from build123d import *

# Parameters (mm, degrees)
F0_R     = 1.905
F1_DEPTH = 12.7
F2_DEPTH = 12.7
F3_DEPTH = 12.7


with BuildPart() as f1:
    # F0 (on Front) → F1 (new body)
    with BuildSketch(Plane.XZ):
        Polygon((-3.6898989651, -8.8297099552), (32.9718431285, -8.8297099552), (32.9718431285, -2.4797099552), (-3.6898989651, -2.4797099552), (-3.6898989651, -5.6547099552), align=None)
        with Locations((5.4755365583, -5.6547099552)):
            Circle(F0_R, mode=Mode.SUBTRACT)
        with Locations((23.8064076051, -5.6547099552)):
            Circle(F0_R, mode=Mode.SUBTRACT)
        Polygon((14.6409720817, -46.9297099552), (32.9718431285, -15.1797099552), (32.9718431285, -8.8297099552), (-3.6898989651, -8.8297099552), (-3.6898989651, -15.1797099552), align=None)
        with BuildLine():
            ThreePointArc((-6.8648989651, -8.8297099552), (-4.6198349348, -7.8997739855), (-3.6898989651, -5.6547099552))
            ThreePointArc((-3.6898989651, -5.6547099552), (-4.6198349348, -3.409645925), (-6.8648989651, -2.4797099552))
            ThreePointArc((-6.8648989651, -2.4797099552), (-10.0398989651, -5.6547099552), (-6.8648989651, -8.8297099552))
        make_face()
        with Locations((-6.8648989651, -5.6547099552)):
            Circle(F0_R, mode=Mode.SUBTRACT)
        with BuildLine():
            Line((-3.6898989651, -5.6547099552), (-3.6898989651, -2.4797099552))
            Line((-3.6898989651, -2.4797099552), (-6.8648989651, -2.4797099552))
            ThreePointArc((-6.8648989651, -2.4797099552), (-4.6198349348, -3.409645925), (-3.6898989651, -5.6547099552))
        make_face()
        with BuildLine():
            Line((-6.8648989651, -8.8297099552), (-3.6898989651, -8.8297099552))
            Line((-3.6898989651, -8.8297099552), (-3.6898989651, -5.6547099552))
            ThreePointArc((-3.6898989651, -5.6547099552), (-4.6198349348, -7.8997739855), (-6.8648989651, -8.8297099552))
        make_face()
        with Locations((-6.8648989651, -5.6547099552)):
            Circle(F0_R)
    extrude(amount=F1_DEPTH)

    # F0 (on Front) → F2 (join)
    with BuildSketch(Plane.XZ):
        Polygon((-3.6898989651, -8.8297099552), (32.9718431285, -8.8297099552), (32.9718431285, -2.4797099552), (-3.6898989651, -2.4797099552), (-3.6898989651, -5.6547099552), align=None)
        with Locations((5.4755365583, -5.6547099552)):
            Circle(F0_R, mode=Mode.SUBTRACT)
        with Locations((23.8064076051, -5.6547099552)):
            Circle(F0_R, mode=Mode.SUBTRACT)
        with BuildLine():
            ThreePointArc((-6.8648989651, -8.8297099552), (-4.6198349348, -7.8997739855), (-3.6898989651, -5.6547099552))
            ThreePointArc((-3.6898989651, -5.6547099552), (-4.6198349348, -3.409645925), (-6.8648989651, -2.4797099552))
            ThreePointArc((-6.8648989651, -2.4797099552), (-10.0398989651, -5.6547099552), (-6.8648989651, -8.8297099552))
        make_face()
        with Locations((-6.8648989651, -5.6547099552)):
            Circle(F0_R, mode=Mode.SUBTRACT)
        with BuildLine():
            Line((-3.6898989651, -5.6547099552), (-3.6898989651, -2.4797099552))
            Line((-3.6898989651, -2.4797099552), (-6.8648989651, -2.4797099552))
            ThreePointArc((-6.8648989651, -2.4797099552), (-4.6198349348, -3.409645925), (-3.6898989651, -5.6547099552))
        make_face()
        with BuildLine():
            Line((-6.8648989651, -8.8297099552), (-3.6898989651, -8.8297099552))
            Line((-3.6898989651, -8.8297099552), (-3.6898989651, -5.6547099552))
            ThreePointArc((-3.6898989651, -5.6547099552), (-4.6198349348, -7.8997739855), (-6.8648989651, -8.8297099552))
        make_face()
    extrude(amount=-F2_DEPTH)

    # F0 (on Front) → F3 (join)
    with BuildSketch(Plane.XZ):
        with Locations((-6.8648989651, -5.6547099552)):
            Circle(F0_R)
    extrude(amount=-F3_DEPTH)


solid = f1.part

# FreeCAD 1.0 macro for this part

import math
import FreeCAD as App
import Part
import Sketcher

V = App.Vector
Q = App.Units.Quantity

doc = App.newDocument("Part")
body = doc.addObject("PartDesign::Body", "Body")

sketch1 = body.newObject("Sketcher::SketchObject", "Sketch")
sketch1.AttachmentSupport = (doc.getObject("XZ_Plane"), [""])
sketch1.MapMode = "FlatFace"
sketch1.addGeometry(Part.LineSegment(V(-3.7, -8.8, 0), V(-3.7, -15.2, 0)), False)
sketch1.addGeometry(Part.LineSegment(V(-3.7, -15.2, 0), V(14.6, -46.9, 0)), False)
sketch1.addGeometry(Part.LineSegment(V(14.6, -46.9, 0), V(33, -15.2, 0)), False)
sketch1.addGeometry(Part.LineSegment(V(33, -15.2, 0), V(33, -2.5, 0)), False)
sketch1.addGeometry(Part.LineSegment(V(33, -2.5, 0), V(-6.9, -2.5, 0)), False)
sketch1.addGeometry(Part.ArcOfCircle(Part.Circle(V(-6.9, -5.7, 0), V(0, 0, 1), 3.2), math.radians(90), math.radians(270)), False)
sketch1.addGeometry(Part.LineSegment(V(-6.9, -8.8, 0), V(-3.7, -8.8, 0)), False)
sketch1.addGeometry(Part.Circle(V(5.5, -5.7, 0), V(0, 0, 1), 1.9), False)
sketch1.addGeometry(Part.Circle(V(23.8, -5.7, 0), V(0, 0, 1), 1.9), False)
sketch1.addConstraint(Sketcher.Constraint("Coincident", 0, 2, 1, 1))
sketch1.addConstraint(Sketcher.Constraint("Coincident", 1, 2, 2, 1))
sketch1.addConstraint(Sketcher.Constraint("Coincident", 2, 2, 3, 1))
sketch1.addConstraint(Sketcher.Constraint("Coincident", 3, 2, 4, 1))
sketch1.addConstraint(Sketcher.Constraint("Tangent", 4, 2, 5, 1))
sketch1.addConstraint(Sketcher.Constraint("Tangent", 5, 2, 6, 1))
sketch1.addConstraint(Sketcher.Constraint("Coincident", 6, 2, 0, 1))
sketch1.addConstraint(Sketcher.Constraint("Vertical", 0))
sketch1.addConstraint(Sketcher.Constraint("Vertical", 3))
sketch1.addConstraint(Sketcher.Constraint("Horizontal", 4))
sketch1.addConstraint(Sketcher.Constraint("Horizontal", 6))
sketch1.addConstraint(Sketcher.Constraint("Equal", 7, 8))
sketch1.addConstraint(Sketcher.Constraint("Horizontal", 5, 3, 7, 3))
sketch1.addConstraint(Sketcher.Constraint("Horizontal", 7, 3, 8, 3))
sketch1.addConstraint(Sketcher.Constraint("Horizontal", 0, 2, 2, 2))
sketch1.addConstraint(Sketcher.Constraint("Equal", 1, 2))
sketch1.addConstraint(Sketcher.Constraint("Diameter", 7, Q("0.15 in")))
sketch1.addConstraint(Sketcher.Constraint("DistanceY", 3, 1, 3, 2, Q("0.5 in")))
sketch1.addConstraint(Sketcher.Constraint("Angle", 1, Q("-60 deg")))
sketch1.addConstraint(Sketcher.Constraint("Radius", 5, Q("0.125 in")))
sketch1.addConstraint(Sketcher.Constraint("DistanceX", 6, 1, 6, 2, Q("0.125 in")))
sketch1.addConstraint(Sketcher.Constraint("DistanceY", 1, 2, 0, 2, Q("1.25 in")))
sketch1.addConstraint(Sketcher.Constraint("DistanceX", 5, 3, -1, 1, Q("6.864899 mm")))
sketch1.addConstraint(Sketcher.Constraint("DistanceY", 5, 3, -1, 1, Q("5.65471 mm")))
sketch1.addConstraint(Sketcher.Constraint("DistanceX", 7, 3, 8, 3, Q("18.330871 mm")))
sketch1.addConstraint(Sketcher.Constraint("DistanceX", -1, 1, 7, 3, Q("5.475537 mm")))
pad1 = body.newObject("PartDesign::Pad", "Pad")
pad1.Profile = sketch1
pad1.Length = Q("0.5 in")

sketch2 = body.newObject("Sketcher::SketchObject", "Sketch001")
sketch2.AttachmentSupport = (doc.getObject("XZ_Plane"), [""])
sketch2.MapMode = "FlatFace"
sketch2.addGeometry(Part.LineSegment(V(33, -8.8, 0), V(33, -2.5, 0)), False)
sketch2.addGeometry(Part.LineSegment(V(33, -2.5, 0), V(-6.9, -2.5, 0)), False)
sketch2.addGeometry(Part.ArcOfCircle(Part.Circle(V(-6.9, -5.7, 0), V(0, 0, 1), 3.2), math.radians(90), math.radians(270)), False)
sketch2.addGeometry(Part.LineSegment(V(-6.9, -8.8, 0), V(33, -8.8, 0)), False)
sketch2.addGeometry(Part.Circle(V(5.5, -5.7, 0), V(0, 0, 1), 1.9), False)
sketch2.addGeometry(Part.Circle(V(23.8, -5.7, 0), V(0, 0, 1), 1.9), False)
sketch2.addGeometry(Part.Circle(V(-6.9, -5.7, 0), V(0, 0, 1), 1.9), False)
sketch2.addConstraint(Sketcher.Constraint("Coincident", 0, 2, 1, 1))
sketch2.addConstraint(Sketcher.Constraint("Tangent", 1, 2, 2, 1))
sketch2.addConstraint(Sketcher.Constraint("Tangent", 2, 2, 3, 1))
sketch2.addConstraint(Sketcher.Constraint("Coincident", 3, 2, 0, 1))
sketch2.addConstraint(Sketcher.Constraint("Vertical", 0))
sketch2.addConstraint(Sketcher.Constraint("Horizontal", 1))
sketch2.addConstraint(Sketcher.Constraint("Horizontal", 3))
sketch2.addConstraint(Sketcher.Constraint("Coincident", 6, 3, 2, 3))
sketch2.addConstraint(Sketcher.Constraint("Equal", 4, 5))
sketch2.addConstraint(Sketcher.Constraint("Equal", 5, 6))
sketch2.addConstraint(Sketcher.Constraint("Horizontal", 2, 3, 4, 3))
sketch2.addConstraint(Sketcher.Constraint("Horizontal", 4, 3, 5, 3))
sketch2.addConstraint(Sketcher.Constraint("Diameter", 4, Q("0.15 in")))
sketch2.addConstraint(Sketcher.Constraint("Radius", 2, Q("0.125 in")))
sketch2.addConstraint(Sketcher.Constraint("DistanceX", 2, 3, -1, 1, Q("6.864899 mm")))
sketch2.addConstraint(Sketcher.Constraint("DistanceX", 1, 2, 1, 1, Q("39.836742 mm")))
sketch2.addConstraint(Sketcher.Constraint("DistanceY", 2, 3, -1, 1, Q("5.65471 mm")))
sketch2.addConstraint(Sketcher.Constraint("DistanceX", 4, 3, 5, 3, Q("18.330871 mm")))
sketch2.addConstraint(Sketcher.Constraint("DistanceX", -1, 1, 4, 3, Q("5.475537 mm")))
pad2 = body.newObject("PartDesign::Pad", "Pad001")
pad2.Profile = sketch2
pad2.Length = Q("0.5 in")
pad2.Reversed = True

sketch3 = body.newObject("Sketcher::SketchObject", "Sketch002")
sketch3.AttachmentSupport = (doc.getObject("XZ_Plane"), [""])
sketch3.MapMode = "FlatFace"
sketch3.addGeometry(Part.Circle(V(-6.9, -5.7, 0), V(0, 0, 1), 1.9), False)
sketch3.addConstraint(Sketcher.Constraint("Diameter", 0, Q("0.15 in")))
sketch3.addConstraint(Sketcher.Constraint("DistanceX", 0, 3, -1, 1, Q("6.864899 mm")))
sketch3.addConstraint(Sketcher.Constraint("DistanceY", 0, 3, -1, 1, Q("5.65471 mm")))
pad3 = body.newObject("PartDesign::Pad", "Pad002")
pad3.Profile = sketch3
pad3.Length = Q("0.5 in")
pad3.Reversed = True

doc.recompute()
